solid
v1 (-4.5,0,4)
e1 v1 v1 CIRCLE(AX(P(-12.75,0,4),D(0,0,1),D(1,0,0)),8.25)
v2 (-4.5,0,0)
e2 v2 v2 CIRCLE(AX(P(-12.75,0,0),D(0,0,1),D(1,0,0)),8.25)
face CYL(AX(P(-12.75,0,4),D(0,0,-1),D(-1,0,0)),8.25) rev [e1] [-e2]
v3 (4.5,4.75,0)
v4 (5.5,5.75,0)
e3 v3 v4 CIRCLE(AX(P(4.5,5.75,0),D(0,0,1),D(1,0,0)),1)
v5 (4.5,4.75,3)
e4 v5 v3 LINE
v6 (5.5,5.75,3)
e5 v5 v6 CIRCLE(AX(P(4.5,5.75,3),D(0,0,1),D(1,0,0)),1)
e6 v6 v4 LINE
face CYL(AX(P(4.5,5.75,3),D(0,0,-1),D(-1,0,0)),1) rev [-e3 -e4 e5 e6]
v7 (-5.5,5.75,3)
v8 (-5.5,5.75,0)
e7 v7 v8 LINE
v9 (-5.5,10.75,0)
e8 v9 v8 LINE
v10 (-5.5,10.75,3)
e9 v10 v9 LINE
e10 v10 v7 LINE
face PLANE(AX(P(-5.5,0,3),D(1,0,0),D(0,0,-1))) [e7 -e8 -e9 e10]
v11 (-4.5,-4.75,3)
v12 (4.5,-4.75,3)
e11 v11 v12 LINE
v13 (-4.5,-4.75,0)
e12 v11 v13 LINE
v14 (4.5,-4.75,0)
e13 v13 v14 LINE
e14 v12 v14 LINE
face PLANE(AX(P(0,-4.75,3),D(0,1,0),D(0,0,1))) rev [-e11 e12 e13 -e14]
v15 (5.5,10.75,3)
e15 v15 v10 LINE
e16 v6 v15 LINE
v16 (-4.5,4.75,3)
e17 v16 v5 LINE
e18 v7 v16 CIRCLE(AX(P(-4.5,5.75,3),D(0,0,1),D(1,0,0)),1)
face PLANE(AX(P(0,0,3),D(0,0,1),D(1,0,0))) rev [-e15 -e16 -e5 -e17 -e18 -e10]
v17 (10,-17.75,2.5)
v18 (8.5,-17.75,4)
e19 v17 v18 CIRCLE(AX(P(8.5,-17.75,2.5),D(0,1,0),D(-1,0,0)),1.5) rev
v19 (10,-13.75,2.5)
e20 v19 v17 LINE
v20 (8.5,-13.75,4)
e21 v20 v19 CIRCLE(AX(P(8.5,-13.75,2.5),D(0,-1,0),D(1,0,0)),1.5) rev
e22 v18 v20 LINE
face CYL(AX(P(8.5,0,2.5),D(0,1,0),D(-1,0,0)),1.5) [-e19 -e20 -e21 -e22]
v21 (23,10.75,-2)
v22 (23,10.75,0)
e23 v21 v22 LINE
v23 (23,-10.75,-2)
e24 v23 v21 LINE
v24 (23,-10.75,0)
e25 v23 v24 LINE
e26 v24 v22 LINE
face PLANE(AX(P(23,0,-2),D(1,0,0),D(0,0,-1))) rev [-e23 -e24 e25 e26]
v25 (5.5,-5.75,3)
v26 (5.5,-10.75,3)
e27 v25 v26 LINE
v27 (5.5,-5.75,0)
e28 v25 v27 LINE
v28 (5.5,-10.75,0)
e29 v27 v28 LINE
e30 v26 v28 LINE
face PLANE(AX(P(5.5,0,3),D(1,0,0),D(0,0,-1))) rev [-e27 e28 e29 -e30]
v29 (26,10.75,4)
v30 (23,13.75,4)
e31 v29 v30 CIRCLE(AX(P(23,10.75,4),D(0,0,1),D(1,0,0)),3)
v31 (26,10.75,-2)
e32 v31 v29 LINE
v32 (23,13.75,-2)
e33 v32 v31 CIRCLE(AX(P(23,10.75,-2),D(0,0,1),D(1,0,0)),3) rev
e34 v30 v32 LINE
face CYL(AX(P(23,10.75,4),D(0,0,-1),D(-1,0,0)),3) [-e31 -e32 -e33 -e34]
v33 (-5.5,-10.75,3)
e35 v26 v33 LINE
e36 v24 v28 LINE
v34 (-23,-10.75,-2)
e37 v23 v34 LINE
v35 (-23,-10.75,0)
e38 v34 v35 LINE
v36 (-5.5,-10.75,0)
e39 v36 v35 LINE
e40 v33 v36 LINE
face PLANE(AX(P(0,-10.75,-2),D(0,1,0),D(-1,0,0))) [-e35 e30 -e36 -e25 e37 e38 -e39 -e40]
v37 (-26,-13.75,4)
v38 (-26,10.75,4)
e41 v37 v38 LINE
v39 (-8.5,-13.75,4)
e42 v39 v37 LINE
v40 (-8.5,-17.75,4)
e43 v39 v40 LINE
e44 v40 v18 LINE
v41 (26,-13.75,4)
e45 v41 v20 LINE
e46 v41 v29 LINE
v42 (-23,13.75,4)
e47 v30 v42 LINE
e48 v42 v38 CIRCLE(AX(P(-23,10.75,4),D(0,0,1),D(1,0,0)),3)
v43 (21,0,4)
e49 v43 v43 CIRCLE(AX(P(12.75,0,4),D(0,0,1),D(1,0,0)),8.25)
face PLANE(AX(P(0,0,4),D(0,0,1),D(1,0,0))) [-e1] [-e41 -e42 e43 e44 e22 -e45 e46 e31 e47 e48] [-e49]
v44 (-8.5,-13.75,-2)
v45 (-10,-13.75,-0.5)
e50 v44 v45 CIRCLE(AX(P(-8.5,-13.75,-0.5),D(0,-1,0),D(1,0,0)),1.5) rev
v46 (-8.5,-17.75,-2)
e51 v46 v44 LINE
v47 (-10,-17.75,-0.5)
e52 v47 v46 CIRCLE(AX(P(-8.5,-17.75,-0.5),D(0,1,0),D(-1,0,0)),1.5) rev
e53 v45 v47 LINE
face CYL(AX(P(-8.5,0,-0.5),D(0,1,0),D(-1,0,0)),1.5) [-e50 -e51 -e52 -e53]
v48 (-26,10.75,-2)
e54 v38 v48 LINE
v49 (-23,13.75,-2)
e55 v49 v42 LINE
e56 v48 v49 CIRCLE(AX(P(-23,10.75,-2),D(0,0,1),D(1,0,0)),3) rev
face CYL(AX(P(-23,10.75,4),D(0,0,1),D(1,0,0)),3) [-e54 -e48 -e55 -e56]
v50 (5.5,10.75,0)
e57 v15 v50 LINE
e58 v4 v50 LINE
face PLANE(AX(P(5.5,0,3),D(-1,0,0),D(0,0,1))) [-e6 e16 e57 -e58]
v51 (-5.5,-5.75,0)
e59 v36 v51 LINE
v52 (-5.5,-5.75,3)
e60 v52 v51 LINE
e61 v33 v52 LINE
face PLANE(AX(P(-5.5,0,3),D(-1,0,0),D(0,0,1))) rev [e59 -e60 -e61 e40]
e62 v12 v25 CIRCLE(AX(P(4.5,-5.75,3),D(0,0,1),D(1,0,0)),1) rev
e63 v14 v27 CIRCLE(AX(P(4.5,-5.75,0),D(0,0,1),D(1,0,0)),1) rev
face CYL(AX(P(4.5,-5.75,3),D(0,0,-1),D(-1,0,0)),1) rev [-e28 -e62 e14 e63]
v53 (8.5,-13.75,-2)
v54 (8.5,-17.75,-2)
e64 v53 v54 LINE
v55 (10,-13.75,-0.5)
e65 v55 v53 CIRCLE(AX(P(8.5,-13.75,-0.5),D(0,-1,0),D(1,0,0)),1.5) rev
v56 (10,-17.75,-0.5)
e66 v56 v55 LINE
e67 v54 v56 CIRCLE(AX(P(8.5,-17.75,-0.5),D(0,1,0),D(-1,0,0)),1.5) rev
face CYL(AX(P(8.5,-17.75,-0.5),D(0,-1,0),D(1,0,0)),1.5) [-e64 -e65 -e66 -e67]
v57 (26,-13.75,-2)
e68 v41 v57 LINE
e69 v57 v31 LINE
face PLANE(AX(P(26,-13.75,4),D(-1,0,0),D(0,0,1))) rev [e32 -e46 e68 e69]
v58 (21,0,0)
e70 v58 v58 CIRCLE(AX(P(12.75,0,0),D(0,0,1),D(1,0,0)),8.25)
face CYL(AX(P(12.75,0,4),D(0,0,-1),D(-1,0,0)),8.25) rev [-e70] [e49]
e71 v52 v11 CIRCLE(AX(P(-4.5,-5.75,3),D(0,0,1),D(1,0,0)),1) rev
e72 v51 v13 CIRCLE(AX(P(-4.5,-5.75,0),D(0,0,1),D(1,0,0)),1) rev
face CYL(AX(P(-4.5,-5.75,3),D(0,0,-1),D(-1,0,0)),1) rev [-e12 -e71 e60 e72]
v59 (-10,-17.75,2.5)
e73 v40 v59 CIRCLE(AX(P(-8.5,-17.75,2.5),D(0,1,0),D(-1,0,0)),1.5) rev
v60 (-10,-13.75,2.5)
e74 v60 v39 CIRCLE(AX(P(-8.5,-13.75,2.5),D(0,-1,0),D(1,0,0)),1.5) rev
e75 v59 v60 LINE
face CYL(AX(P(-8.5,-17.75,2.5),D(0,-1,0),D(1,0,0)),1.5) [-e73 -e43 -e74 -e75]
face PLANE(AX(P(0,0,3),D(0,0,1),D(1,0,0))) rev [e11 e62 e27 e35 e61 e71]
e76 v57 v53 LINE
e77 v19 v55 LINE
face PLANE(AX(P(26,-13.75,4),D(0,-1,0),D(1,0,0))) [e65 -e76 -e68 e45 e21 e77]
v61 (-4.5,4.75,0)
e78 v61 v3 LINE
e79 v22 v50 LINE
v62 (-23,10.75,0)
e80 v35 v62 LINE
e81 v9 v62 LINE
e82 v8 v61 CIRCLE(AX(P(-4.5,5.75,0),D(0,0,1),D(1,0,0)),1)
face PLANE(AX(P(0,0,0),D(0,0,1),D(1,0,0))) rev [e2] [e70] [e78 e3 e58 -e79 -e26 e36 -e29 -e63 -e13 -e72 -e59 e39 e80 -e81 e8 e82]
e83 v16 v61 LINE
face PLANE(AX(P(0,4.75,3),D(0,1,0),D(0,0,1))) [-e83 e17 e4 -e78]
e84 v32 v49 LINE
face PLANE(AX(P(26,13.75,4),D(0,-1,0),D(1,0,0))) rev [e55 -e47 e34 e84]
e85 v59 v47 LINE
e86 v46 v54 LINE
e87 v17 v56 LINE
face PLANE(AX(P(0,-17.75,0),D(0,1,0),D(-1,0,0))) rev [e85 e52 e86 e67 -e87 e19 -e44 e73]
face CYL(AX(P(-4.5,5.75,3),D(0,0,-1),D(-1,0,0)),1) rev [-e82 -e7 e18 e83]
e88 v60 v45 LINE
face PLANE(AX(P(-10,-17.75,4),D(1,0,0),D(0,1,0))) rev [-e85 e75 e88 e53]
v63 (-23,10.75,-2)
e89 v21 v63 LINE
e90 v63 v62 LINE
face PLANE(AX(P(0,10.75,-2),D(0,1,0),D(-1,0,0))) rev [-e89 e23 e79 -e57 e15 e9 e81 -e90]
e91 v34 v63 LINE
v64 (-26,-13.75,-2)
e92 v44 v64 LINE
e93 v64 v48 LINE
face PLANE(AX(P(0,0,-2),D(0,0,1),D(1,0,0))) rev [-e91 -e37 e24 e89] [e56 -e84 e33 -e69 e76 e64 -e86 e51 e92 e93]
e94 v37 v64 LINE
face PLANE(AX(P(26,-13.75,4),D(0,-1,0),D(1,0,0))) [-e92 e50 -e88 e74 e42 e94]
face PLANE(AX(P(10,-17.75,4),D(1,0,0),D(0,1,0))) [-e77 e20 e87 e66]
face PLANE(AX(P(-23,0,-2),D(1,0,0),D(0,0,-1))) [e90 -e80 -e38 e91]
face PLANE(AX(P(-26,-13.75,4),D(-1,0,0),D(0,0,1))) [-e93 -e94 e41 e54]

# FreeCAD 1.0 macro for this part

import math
import FreeCAD as App
import Part
import Sketcher
from FreeCAD import Vector
Q = App.Units.Quantity


def edges_at(feature, points):
    """Names of the edges that pass closest to the given points."""
    edges = feature.Shape.Edges
    near = lambda p: min(range(len(edges)), key=lambda i: edges[i].distToShape(Part.Vertex(*p))[0])
    return sorted({f"Edge{near(p) + 1}" for p in points})

doc = App.newDocument("Part")
body = doc.addObject("PartDesign::Body", "Body")

sketch1 = doc.addObject("Sketcher::SketchObject", "Sketch")
body.addObject(sketch1)
sketch1.AttachmentSupport = (doc.XY_Plane, [""])
sketch1.MapMode = "FlatFace"
sketch1.addGeometry(Part.LineSegment(Vector(-26, 14, 0), Vector(-26, -14, 0)), False)
sketch1.addGeometry(Part.LineSegment(Vector(-26, -14, 0), Vector(26, -14, 0)), False)
sketch1.addGeometry(Part.LineSegment(Vector(26, -14, 0), Vector(26, 14, 0)), False)
sketch1.addGeometry(Part.LineSegment(Vector(26, 14, 0), Vector(-26, 14, 0)), False)
sketch1.addGeometry(Part.Circle(Vector(-13, 0, 0), Vector(0, 0, 1), 8), False)
sketch1.addGeometry(Part.Circle(Vector(13, 0, 0), Vector(0, 0, 1), 8), False)
sketch1.addConstraint(Sketcher.Constraint("Coincident", 0, 2, 1, 1))
sketch1.addConstraint(Sketcher.Constraint("Coincident", 1, 2, 2, 1))
sketch1.addConstraint(Sketcher.Constraint("Coincident", 2, 2, 3, 1))
sketch1.addConstraint(Sketcher.Constraint("Coincident", 3, 2, 0, 1))
sketch1.addConstraint(Sketcher.Constraint("Vertical", 0))
sketch1.addConstraint(Sketcher.Constraint("Horizontal", 1))
sketch1.addConstraint(Sketcher.Constraint("Vertical", 2))
sketch1.addConstraint(Sketcher.Constraint("Horizontal", 3))
sketch1.addConstraint(Sketcher.Constraint("Equal", 4, 5))
sketch1.addConstraint(Sketcher.Constraint("Symmetric", 4, 3, 5, 3, -1, 1))
sketch1.addConstraint(Sketcher.Constraint("Symmetric", 0, 2, 2, 2, -1, 1))
sketch1.addConstraint(Sketcher.Constraint("PointOnObject", 4, 3, -1))
sketch1.addConstraint(Sketcher.Constraint("Diameter", 4, Q("16.5 mm")))
sketch1.addConstraint(Sketcher.Constraint("DistanceX", 1, 1, 1, 2, Q("52 mm")))
sketch1.addConstraint(Sketcher.Constraint("DistanceY", 0, 2, 0, 1, Q("27.5 mm")))
sketch1.addConstraint(Sketcher.Constraint("DistanceX", 4, 3, 5, 3, Q("25.5 mm")))
pad1 = doc.addObject("PartDesign::Pad", "Pad")
body.addObject(pad1)
pad1.Profile = sketch1
pad1.Length = 4

sketch2 = doc.addObject("Sketcher::SketchObject", "Sketch001")
body.addObject(sketch2)
sketch2.AttachmentSupport = (doc.XY_Plane, [""])
sketch2.MapMode = "FlatFace"
sketch2.addGeometry(Part.LineSegment(Vector(-26, 14, 0), Vector(-26, -14, 0)), False)
sketch2.addGeometry(Part.LineSegment(Vector(-26, -14, 0), Vector(26, -14, 0)), False)
sketch2.addGeometry(Part.LineSegment(Vector(26, -14, 0), Vector(26, 14, 0)), False)
sketch2.addGeometry(Part.LineSegment(Vector(26, 14, 0), Vector(-26, 14, 0)), False)
sketch2.addGeometry(Part.LineSegment(Vector(23, -11, 0), Vector(-23, -11, 0)), False)
sketch2.addGeometry(Part.LineSegment(Vector(-23, -11, 0), Vector(-23, 11, 0)), False)
sketch2.addGeometry(Part.LineSegment(Vector(-23, 11, 0), Vector(23, 11, 0)), False)
sketch2.addGeometry(Part.LineSegment(Vector(23, 11, 0), Vector(23, -11, 0)), False)
sketch2.addConstraint(Sketcher.Constraint("Coincident", 0, 2, 1, 1))
sketch2.addConstraint(Sketcher.Constraint("Coincident", 1, 2, 2, 1))
sketch2.addConstraint(Sketcher.Constraint("Coincident", 2, 2, 3, 1))
sketch2.addConstraint(Sketcher.Constraint("Coincident", 3, 2, 0, 1))
sketch2.addConstraint(Sketcher.Constraint("Coincident", 4, 2, 5, 1))
sketch2.addConstraint(Sketcher.Constraint("Coincident", 5, 2, 6, 1))
sketch2.addConstraint(Sketcher.Constraint("Coincident", 6, 2, 7, 1))
sketch2.addConstraint(Sketcher.Constraint("Coincident", 7, 2, 4, 1))
sketch2.addConstraint(Sketcher.Constraint("Vertical", 0))
sketch2.addConstraint(Sketcher.Constraint("Horizontal", 1))
sketch2.addConstraint(Sketcher.Constraint("Vertical", 2))
sketch2.addConstraint(Sketcher.Constraint("Horizontal", 3))
sketch2.addConstraint(Sketcher.Constraint("Horizontal", 4))
sketch2.addConstraint(Sketcher.Constraint("Vertical", 5))
sketch2.addConstraint(Sketcher.Constraint("Horizontal", 6))
sketch2.addConstraint(Sketcher.Constraint("Vertical", 7))
sketch2.addConstraint(Sketcher.Constraint("Symmetric", 0, 2, 2, 2, -1, 1))
sketch2.addConstraint(Sketcher.Constraint("Symmetric", 4, 2, 6, 2, -1, 1))
sketch2.addConstraint(Sketcher.Constraint("DistanceX", 1, 1, 1, 2, Q("52 mm")))
sketch2.addConstraint(Sketcher.Constraint("DistanceX", 4, 2, 4, 1, Q("46 mm")))
sketch2.addConstraint(Sketcher.Constraint("DistanceY", 0, 2, 0, 1, Q("27.5 mm")))
sketch2.addConstraint(Sketcher.Constraint("DistanceY", 5, 1, 5, 2, Q("21.5 mm")))
pad2 = doc.addObject("PartDesign::Pad", "Pad001")
body.addObject(pad2)
pad2.Profile = sketch2
pad2.Length = 2
pad2.Reversed = True

sketch3 = doc.addObject("Sketcher::SketchObject", "Sketch002")
body.addObject(sketch3)
sketch3.AttachmentSupport = (doc.XY_Plane, [""])
sketch3.MapMode = "FlatFace"
sketch3.addGeometry(Part.LineSegment(Vector(5.5, 10.8, 0), Vector(-5.5, 10.8, 0)), False)
sketch3.addGeometry(Part.LineSegment(Vector(-5.5, 10.8, 0), Vector(-5.5, 5.8, 0)), False)
sketch3.addGeometry(Part.ArcOfCircle(Part.Circle(Vector(-4.5, 5.8, 0), Vector(0, 0, 1), 1), math.radians(-180), math.radians(-90)), False)
sketch3.addGeometry(Part.LineSegment(Vector(-4.5, 4.8, 0), Vector(4.5, 4.8, 0)), False)
sketch3.addGeometry(Part.ArcOfCircle(Part.Circle(Vector(4.5, 5.8, 0), Vector(0, 0, 1), 1), math.radians(-90), math.radians(0)), False)
sketch3.addGeometry(Part.LineSegment(Vector(5.5, 5.8, 0), Vector(5.5, 10.8, 0)), False)
sketch3.addGeometry(Part.LineSegment(Vector(-5.5, -5.8, 0), Vector(-5.5, -10.8, 0)), False)
sketch3.addGeometry(Part.LineSegment(Vector(-5.5, -10.8, 0), Vector(5.5, -10.8, 0)), False)
sketch3.addGeometry(Part.LineSegment(Vector(5.5, -10.8, 0), Vector(5.5, -5.8, 0)), False)
sketch3.addGeometry(Part.ArcOfCircle(Part.Circle(Vector(4.5, -5.8, 0), Vector(0, 0, 1), 1), math.radians(0), math.radians(90)), False)
sketch3.addGeometry(Part.LineSegment(Vector(4.5, -4.8, 0), Vector(-4.5, -4.8, 0)), False)
sketch3.addGeometry(Part.ArcOfCircle(Part.Circle(Vector(-4.5, -5.8, 0), Vector(0, 0, 1), 1), math.radians(90), math.radians(180)), False)
sketch3.addConstraint(Sketcher.Constraint("Coincident", 0, 2, 1, 1))
sketch3.addConstraint(Sketcher.Constraint("Tangent", 1, 2, 2, 1))
sketch3.addConstraint(Sketcher.Constraint("Tangent", 2, 2, 3, 1))
sketch3.addConstraint(Sketcher.Constraint("Tangent", 3, 2, 4, 1))
sketch3.addConstraint(Sketcher.Constraint("Tangent", 4, 2, 5, 1))
sketch3.addConstraint(Sketcher.Constraint("Coincident", 5, 2, 0, 1))
sketch3.addConstraint(Sketcher.Constraint("Coincident", 6, 2, 7, 1))
sketch3.addConstraint(Sketcher.Constraint("Coincident", 7, 2, 8, 1))
sketch3.addConstraint(Sketcher.Constraint("Tangent", 8, 2, 9, 1))
sketch3.addConstraint(Sketcher.Constraint("Tangent", 9, 2, 10, 1))
sketch3.addConstraint(Sketcher.Constraint("Tangent", 10, 2, 11, 1))
sketch3.addConstraint(Sketcher.Constraint("Tangent", 11, 2, 6, 1))
sketch3.addConstraint(Sketcher.Constraint("Horizontal", 0))
sketch3.addConstraint(Sketcher.Constraint("Vertical", 1))
sketch3.addConstraint(Sketcher.Constraint("Horizontal", 3))
sketch3.addConstraint(Sketcher.Constraint("Vertical", 5))
sketch3.addConstraint(Sketcher.Constraint("Vertical", 6))
sketch3.addConstraint(Sketcher.Constraint("Horizontal", 7))
sketch3.addConstraint(Sketcher.Constraint("Vertical", 8))
sketch3.addConstraint(Sketcher.Constraint("Horizontal", 10))
sketch3.addConstraint(Sketcher.Constraint("Equal", 2, 4))
sketch3.addConstraint(Sketcher.Constraint("Equal", 4, 9))
sketch3.addConstraint(Sketcher.Constraint("Equal", 9, 11))
sketch3.addConstraint(Sketcher.Constraint("Symmetric", 2, 3, 9, 3, -1, 1))
sketch3.addConstraint(Sketcher.Constraint("Symmetric", 5, 2, 6, 2, -1, 1))
sketch3.addConstraint(Sketcher.Constraint("Vertical", 4, 3, 9, 3))
sketch3.addConstraint(Sketcher.Constraint("Radius", 2, Q("1 mm")))
sketch3.addConstraint(Sketcher.Constraint("DistanceX", 0, 2, 0, 1, Q("11 mm")))
sketch3.addConstraint(Sketcher.Constraint("DistanceY", 1, 2, 1, 1, Q("5 mm")))
sketch3.addConstraint(Sketcher.Constraint("DistanceY", 9, 3, 4, 3, Q("11.5 mm")))
pocket1 = doc.addObject("PartDesign::Pocket", "Pocket")
body.addObject(pocket1)
pocket1.Profile = sketch3
pocket1.Length = 3
pocket1.Reversed = True
doc.recompute()

fillet = doc.addObject("PartDesign::Fillet", "Fillet")
body.addObject(fillet)
fillet.Base = (pocket1, edges_at(pocket1, [(-26, 13.75, 1), (26, 13.75, 1)]))
fillet.Radius = 3

sketch4 = doc.addObject("Sketcher::SketchObject", "Sketch003")
body.addObject(sketch4)
sketch4.AttachmentSupport = (doc.XZ_Plane, [""])
sketch4.MapMode = "FlatFace"
sketch4.AttachmentOffset = App.Placement(Vector(0, 0, 13.75), App.Rotation())
sketch4.addGeometry(Part.LineSegment(Vector(-10, 4, 0), Vector(-10, -2, 0)), False)
sketch4.addGeometry(Part.LineSegment(Vector(-10, -2, 0), Vector(10, -2, 0)), False)
sketch4.addGeometry(Part.LineSegment(Vector(10, -2, 0), Vector(10, 4, 0)), False)
sketch4.addGeometry(Part.LineSegment(Vector(10, 4, 0), Vector(-10, 4, 0)), False)
sketch4.addConstraint(Sketcher.Constraint("Coincident", 0, 2, 1, 1))
sketch4.addConstraint(Sketcher.Constraint("Coincident", 1, 2, 2, 1))
sketch4.addConstraint(Sketcher.Constraint("Coincident", 2, 2, 3, 1))
sketch4.addConstraint(Sketcher.Constraint("Coincident", 3, 2, 0, 1))
sketch4.addConstraint(Sketcher.Constraint("Vertical", 0))
sketch4.addConstraint(Sketcher.Constraint("Horizontal", 1))
sketch4.addConstraint(Sketcher.Constraint("Vertical", 2))
sketch4.addConstraint(Sketcher.Constraint("Horizontal", 3))
sketch4.addConstraint(Sketcher.Constraint("DistanceX", 1, 1, 1, 2, Q("20 mm")))
sketch4.addConstraint(Sketcher.Constraint("DistanceY", 0, 2, 0, 1, Q("6 mm")))
sketch4.addConstraint(Sketcher.Constraint("DistanceX", 0, 2, -1, 1, Q("10 mm")))
sketch4.addConstraint(Sketcher.Constraint("DistanceY", 0, 2, -1, 1, Q("2 mm")))
pad3 = doc.addObject("PartDesign::Pad", "Pad002")
body.addObject(pad3)
pad3.Profile = sketch4
pad3.Length = 4
doc.recompute()

fillet2 = doc.addObject("PartDesign::Fillet", "Fillet001")
body.addObject(fillet2)
fillet2.Base = (pad3, edges_at(pad3, [
    (-10, -15.75, -2),
    (-10, -15.75, 4),
    (10, -15.75, -2),
    (10, -15.75, 4),
]))
fillet2.Radius = 1.5

doc.recompute()
